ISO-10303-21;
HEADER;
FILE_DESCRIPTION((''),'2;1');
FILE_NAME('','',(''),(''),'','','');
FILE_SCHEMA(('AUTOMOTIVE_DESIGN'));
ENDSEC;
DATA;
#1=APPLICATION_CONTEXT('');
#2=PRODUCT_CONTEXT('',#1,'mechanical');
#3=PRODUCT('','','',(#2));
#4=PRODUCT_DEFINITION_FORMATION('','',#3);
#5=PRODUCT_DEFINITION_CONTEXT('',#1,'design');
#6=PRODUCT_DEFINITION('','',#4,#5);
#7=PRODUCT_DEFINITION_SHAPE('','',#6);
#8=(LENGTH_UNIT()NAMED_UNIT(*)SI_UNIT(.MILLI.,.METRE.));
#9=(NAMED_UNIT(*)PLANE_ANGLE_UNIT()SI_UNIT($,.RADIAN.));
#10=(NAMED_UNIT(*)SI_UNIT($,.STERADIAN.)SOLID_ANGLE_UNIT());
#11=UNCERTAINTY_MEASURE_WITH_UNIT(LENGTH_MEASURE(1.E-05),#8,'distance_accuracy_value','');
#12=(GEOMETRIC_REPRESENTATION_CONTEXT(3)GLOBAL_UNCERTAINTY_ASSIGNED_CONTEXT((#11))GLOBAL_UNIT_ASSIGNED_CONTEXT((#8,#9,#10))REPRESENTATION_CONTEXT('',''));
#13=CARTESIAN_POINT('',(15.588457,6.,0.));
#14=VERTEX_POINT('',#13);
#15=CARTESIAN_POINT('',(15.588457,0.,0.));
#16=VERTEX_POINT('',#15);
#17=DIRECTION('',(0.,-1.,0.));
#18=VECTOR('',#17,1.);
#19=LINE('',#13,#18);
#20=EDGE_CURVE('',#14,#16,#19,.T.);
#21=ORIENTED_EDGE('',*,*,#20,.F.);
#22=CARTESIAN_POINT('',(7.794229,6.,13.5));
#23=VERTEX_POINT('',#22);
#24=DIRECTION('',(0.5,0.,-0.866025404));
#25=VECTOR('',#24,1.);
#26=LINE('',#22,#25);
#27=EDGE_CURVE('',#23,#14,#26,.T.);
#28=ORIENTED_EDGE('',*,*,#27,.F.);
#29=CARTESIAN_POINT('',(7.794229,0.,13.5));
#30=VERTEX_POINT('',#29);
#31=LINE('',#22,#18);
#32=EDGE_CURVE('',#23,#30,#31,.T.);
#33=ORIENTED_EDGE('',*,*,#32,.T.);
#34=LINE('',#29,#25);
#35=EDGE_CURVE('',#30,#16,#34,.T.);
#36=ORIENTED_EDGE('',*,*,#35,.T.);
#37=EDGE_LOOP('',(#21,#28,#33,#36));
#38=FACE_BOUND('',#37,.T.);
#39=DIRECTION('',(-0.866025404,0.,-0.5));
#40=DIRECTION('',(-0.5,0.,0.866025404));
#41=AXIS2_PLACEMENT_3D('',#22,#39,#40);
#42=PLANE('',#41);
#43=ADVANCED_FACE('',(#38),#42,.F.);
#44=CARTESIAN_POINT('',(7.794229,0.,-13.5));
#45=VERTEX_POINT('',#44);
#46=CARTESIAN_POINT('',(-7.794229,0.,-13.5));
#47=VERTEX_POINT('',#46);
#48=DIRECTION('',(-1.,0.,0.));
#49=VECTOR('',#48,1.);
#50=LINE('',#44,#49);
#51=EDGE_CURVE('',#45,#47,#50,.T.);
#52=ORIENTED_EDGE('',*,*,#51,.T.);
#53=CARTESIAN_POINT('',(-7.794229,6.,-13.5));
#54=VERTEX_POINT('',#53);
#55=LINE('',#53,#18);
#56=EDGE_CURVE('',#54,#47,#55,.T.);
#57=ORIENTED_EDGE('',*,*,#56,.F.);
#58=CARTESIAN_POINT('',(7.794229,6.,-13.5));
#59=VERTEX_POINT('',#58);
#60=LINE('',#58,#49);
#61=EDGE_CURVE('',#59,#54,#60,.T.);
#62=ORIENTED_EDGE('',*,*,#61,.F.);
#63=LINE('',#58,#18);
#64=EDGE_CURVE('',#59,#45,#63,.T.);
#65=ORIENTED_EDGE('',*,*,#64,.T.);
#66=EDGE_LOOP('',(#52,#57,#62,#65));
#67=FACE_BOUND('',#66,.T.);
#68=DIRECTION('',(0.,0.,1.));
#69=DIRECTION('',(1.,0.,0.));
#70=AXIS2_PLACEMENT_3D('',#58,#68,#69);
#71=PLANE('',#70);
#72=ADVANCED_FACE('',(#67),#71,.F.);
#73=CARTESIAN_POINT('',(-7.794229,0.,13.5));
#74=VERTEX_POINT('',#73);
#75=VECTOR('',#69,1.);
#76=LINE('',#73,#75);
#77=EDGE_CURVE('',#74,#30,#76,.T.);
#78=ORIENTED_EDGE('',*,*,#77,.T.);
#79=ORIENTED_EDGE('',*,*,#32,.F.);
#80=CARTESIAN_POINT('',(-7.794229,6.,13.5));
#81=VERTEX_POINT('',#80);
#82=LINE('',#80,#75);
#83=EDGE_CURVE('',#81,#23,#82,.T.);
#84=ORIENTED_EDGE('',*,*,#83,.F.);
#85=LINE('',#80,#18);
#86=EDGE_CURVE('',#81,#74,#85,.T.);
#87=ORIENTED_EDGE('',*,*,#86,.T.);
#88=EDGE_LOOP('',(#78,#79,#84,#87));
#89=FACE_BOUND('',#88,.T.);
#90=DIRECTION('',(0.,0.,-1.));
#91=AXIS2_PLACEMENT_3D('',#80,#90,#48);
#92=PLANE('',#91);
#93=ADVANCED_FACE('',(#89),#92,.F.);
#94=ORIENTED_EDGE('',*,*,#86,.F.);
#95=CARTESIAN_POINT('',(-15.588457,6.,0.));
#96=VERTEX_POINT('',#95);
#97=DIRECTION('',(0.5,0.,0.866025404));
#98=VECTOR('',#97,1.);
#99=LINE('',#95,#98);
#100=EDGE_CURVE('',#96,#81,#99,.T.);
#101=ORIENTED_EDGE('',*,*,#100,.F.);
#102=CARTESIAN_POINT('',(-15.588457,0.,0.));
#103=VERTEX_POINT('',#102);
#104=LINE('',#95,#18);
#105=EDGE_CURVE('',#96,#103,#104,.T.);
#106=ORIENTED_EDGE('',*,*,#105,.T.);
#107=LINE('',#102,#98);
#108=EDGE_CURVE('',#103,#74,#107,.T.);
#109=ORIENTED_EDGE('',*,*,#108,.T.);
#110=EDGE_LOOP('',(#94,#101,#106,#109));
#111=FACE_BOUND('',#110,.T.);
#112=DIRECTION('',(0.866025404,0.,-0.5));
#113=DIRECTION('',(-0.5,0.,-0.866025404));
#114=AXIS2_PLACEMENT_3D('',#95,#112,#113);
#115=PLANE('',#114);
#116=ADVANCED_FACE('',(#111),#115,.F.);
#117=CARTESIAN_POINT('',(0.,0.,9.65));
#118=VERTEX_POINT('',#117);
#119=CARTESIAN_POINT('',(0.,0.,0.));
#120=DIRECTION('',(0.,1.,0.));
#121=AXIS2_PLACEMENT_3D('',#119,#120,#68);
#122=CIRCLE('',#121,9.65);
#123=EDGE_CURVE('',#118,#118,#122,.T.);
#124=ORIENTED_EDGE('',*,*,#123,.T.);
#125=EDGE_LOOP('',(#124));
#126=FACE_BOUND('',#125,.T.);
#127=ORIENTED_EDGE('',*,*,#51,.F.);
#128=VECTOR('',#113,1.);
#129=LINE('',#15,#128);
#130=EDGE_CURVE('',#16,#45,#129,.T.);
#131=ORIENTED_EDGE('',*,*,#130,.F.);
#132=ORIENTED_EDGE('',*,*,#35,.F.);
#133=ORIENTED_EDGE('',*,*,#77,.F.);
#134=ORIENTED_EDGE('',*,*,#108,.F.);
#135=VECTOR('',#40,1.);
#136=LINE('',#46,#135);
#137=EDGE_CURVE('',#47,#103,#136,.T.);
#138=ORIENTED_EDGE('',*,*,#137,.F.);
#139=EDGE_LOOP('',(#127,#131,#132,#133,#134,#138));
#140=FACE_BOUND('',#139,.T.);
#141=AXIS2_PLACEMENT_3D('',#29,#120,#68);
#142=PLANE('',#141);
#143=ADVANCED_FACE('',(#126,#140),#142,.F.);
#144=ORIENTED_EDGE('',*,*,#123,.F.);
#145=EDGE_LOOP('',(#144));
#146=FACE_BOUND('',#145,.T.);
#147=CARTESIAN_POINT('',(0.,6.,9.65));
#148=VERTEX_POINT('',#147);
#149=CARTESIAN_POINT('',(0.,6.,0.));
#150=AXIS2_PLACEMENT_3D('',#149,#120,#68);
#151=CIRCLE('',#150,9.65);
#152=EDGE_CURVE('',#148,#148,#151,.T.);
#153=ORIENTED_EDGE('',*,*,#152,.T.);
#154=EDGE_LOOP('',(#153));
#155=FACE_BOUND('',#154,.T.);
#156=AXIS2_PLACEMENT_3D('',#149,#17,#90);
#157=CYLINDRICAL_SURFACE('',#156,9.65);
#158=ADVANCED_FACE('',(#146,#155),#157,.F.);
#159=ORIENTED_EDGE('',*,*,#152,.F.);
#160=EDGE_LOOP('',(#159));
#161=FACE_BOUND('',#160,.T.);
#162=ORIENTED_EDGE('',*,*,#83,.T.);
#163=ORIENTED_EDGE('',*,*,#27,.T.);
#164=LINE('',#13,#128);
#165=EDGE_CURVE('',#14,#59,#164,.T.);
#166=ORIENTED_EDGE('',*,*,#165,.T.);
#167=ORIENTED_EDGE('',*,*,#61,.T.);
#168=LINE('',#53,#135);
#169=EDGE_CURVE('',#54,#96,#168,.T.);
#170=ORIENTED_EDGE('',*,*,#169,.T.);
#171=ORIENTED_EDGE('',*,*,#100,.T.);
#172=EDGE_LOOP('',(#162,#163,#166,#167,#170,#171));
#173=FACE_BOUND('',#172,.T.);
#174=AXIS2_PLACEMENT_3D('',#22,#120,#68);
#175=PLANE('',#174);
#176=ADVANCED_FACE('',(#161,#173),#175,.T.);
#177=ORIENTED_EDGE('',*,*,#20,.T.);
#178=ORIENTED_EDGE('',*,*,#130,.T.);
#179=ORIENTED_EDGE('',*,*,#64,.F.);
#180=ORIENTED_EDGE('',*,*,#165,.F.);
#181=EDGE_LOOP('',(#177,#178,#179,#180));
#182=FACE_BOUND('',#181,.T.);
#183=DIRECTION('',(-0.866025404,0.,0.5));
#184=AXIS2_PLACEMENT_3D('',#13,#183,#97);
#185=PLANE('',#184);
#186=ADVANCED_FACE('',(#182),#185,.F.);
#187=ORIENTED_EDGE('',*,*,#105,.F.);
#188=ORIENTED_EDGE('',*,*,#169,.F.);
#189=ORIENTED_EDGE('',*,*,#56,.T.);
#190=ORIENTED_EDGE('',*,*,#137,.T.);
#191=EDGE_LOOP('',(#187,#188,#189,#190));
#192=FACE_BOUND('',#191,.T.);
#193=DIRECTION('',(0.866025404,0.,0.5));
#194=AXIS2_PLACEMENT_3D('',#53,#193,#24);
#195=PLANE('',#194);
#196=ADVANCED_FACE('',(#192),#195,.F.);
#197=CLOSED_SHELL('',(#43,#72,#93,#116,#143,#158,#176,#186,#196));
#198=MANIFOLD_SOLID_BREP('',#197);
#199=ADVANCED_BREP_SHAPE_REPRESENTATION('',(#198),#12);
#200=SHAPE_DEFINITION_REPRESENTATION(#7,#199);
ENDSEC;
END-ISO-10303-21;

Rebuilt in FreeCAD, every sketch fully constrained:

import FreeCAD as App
import Part
import Sketcher
Q = App.Units.Quantity


def add_polygon(sketch, points):
    """Adds a closed chain of lines whose ends are joined by coincident constraints."""
    first, n = sketch.GeometryCount, len(points)
    for a, b in zip(points, points[1:] + points[:1]):
        sketch.addGeometry(Part.LineSegment(App.Vector(*a, 0), App.Vector(*b, 0)), False)
    for i in range(n):
        sketch.addConstraint(Sketcher.Constraint("Coincident", first + i, 2, first + (i + 1) % n, 1))

doc = App.newDocument("Part")
body = doc.addObject("PartDesign::Body", "Body")

sketch1 = doc.addObject("Sketcher::SketchObject", "Sketch")
body.addObject(sketch1)
sketch1.AttachmentSupport = (doc.XZ_Plane, [""])
sketch1.MapMode = "FlatFace"
add_polygon(sketch1, [(7.794229, 13.5), (15.588457, 0), (7.794229, -13.5), (-7.794229, -13.5), (-15.588457, 0), (-7.794229, 13.5)])
sketch1.addGeometry(Part.Circle(App.Vector(0, 0, 0), App.Vector(0, 0, 1), 9.65), False)
sketch1.addConstraint(Sketcher.Constraint("Horizontal", 2))
sketch1.addConstraint(Sketcher.Constraint("Horizontal", 5))
sketch1.addConstraint(Sketcher.Constraint("Coincident", 6, 3, -1, 1))
sketch1.addConstraint(Sketcher.Constraint("Symmetric", 0, 2, 3, 2, -1, 1))
sketch1.addConstraint(Sketcher.Constraint("Symmetric", 1, 2, 4, 2, -1, 1))
sketch1.addConstraint(Sketcher.Constraint("PointOnObject", 0, 2, -1))
sketch1.addConstraint(Sketcher.Constraint("Parallel", 0, 3))
sketch1.addConstraint(Sketcher.Constraint("Vertical", 2, 2, 4, 2))
sketch1.addConstraint(Sketcher.Constraint("Diameter", 6, Q("19.3 mm")))
sketch1.addConstraint(Sketcher.Constraint("Angle", 0, Q("-60 deg")))
sketch1.addConstraint(Sketcher.Constraint("DistanceY", 2, 2, 4, 2, Q("27 mm")))
sketch1.addConstraint(Sketcher.Constraint("DistanceX", 2, 2, 2, 1, Q("15.588457 mm")))
pad1 = doc.addObject("PartDesign::Pad", "Pad")
body.addObject(pad1)
pad1.Profile = sketch1
pad1.Length = 6
pad1.Reversed = True

doc.recompute()
